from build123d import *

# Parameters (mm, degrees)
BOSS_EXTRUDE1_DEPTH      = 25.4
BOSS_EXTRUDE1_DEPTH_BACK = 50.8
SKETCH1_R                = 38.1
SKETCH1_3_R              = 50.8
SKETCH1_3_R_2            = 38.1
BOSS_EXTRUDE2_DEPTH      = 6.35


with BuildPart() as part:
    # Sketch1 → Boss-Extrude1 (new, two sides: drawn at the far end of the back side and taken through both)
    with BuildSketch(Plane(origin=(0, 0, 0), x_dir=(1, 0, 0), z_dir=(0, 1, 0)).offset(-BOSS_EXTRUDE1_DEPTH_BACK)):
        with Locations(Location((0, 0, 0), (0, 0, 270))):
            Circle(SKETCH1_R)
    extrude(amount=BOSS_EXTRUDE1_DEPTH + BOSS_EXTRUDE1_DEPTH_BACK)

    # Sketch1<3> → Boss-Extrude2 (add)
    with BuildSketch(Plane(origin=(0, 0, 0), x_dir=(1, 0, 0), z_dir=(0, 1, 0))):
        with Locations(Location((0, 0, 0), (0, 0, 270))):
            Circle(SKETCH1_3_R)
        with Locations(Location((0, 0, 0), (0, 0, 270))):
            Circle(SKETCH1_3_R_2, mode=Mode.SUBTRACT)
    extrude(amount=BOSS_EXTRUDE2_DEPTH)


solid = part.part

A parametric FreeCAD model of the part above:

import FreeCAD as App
import Part
import Sketcher
from FreeCAD import Vector
Q = App.Units.Quantity

doc = App.newDocument("Part")
body = doc.addObject("PartDesign::Body", "Body")

# Sketch on XZ plane
sketch1 = doc.addObject("Sketcher::SketchObject", "Sketch")
body.addObject(sketch1)
sketch1.AttachmentSupport = (doc.XZ_Plane, [""])
sketch1.MapMode = "FlatFace"
sketch1.addGeometry(Part.Circle(Vector(0, 0, 0), Vector(0, 0, 1), 38), False)
sketch1.addConstraint([
    Sketcher.Constraint("Coincident", 0, 3, -1, 1),
    Sketcher.Constraint("Diameter", 0, Q("3 in")),
])
pad1 = doc.addObject("PartDesign::Pad", "Pad")
body.addObject(pad1)
pad1.Profile = sketch1
pad1.Type = "TwoLengths"
pad1.Length = Q("1 in")
pad1.Length2 = Q("2 in")
pad1.Reversed = True

# Sketch on XZ plane
sketch2 = doc.addObject("Sketcher::SketchObject", "Sketch001")
body.addObject(sketch2)
sketch2.AttachmentSupport = (doc.XZ_Plane, [""])
sketch2.MapMode = "FlatFace"
sketch2.addGeometry([
    Part.Circle(Vector(0, 0, 0), Vector(0, 0, 1), 51),
    Part.Circle(Vector(0, 0, 0), Vector(0, 0, 1), 38),
], False)
sketch2.addConstraint([
    Sketcher.Constraint("Coincident", 0, 3, -1, 1),
    Sketcher.Constraint("Coincident", 1, 3, -1, 1),
    Sketcher.Constraint("Diameter", 0, Q("4 in")),
    Sketcher.Constraint("Diameter", 1, Q("3 in")),
])
pad2 = doc.addObject("PartDesign::Pad", "Pad001")
body.addObject(pad2)
pad2.Profile = sketch2
pad2.Length = Q("0.25 in")
pad2.Reversed = True

doc.recompute()
